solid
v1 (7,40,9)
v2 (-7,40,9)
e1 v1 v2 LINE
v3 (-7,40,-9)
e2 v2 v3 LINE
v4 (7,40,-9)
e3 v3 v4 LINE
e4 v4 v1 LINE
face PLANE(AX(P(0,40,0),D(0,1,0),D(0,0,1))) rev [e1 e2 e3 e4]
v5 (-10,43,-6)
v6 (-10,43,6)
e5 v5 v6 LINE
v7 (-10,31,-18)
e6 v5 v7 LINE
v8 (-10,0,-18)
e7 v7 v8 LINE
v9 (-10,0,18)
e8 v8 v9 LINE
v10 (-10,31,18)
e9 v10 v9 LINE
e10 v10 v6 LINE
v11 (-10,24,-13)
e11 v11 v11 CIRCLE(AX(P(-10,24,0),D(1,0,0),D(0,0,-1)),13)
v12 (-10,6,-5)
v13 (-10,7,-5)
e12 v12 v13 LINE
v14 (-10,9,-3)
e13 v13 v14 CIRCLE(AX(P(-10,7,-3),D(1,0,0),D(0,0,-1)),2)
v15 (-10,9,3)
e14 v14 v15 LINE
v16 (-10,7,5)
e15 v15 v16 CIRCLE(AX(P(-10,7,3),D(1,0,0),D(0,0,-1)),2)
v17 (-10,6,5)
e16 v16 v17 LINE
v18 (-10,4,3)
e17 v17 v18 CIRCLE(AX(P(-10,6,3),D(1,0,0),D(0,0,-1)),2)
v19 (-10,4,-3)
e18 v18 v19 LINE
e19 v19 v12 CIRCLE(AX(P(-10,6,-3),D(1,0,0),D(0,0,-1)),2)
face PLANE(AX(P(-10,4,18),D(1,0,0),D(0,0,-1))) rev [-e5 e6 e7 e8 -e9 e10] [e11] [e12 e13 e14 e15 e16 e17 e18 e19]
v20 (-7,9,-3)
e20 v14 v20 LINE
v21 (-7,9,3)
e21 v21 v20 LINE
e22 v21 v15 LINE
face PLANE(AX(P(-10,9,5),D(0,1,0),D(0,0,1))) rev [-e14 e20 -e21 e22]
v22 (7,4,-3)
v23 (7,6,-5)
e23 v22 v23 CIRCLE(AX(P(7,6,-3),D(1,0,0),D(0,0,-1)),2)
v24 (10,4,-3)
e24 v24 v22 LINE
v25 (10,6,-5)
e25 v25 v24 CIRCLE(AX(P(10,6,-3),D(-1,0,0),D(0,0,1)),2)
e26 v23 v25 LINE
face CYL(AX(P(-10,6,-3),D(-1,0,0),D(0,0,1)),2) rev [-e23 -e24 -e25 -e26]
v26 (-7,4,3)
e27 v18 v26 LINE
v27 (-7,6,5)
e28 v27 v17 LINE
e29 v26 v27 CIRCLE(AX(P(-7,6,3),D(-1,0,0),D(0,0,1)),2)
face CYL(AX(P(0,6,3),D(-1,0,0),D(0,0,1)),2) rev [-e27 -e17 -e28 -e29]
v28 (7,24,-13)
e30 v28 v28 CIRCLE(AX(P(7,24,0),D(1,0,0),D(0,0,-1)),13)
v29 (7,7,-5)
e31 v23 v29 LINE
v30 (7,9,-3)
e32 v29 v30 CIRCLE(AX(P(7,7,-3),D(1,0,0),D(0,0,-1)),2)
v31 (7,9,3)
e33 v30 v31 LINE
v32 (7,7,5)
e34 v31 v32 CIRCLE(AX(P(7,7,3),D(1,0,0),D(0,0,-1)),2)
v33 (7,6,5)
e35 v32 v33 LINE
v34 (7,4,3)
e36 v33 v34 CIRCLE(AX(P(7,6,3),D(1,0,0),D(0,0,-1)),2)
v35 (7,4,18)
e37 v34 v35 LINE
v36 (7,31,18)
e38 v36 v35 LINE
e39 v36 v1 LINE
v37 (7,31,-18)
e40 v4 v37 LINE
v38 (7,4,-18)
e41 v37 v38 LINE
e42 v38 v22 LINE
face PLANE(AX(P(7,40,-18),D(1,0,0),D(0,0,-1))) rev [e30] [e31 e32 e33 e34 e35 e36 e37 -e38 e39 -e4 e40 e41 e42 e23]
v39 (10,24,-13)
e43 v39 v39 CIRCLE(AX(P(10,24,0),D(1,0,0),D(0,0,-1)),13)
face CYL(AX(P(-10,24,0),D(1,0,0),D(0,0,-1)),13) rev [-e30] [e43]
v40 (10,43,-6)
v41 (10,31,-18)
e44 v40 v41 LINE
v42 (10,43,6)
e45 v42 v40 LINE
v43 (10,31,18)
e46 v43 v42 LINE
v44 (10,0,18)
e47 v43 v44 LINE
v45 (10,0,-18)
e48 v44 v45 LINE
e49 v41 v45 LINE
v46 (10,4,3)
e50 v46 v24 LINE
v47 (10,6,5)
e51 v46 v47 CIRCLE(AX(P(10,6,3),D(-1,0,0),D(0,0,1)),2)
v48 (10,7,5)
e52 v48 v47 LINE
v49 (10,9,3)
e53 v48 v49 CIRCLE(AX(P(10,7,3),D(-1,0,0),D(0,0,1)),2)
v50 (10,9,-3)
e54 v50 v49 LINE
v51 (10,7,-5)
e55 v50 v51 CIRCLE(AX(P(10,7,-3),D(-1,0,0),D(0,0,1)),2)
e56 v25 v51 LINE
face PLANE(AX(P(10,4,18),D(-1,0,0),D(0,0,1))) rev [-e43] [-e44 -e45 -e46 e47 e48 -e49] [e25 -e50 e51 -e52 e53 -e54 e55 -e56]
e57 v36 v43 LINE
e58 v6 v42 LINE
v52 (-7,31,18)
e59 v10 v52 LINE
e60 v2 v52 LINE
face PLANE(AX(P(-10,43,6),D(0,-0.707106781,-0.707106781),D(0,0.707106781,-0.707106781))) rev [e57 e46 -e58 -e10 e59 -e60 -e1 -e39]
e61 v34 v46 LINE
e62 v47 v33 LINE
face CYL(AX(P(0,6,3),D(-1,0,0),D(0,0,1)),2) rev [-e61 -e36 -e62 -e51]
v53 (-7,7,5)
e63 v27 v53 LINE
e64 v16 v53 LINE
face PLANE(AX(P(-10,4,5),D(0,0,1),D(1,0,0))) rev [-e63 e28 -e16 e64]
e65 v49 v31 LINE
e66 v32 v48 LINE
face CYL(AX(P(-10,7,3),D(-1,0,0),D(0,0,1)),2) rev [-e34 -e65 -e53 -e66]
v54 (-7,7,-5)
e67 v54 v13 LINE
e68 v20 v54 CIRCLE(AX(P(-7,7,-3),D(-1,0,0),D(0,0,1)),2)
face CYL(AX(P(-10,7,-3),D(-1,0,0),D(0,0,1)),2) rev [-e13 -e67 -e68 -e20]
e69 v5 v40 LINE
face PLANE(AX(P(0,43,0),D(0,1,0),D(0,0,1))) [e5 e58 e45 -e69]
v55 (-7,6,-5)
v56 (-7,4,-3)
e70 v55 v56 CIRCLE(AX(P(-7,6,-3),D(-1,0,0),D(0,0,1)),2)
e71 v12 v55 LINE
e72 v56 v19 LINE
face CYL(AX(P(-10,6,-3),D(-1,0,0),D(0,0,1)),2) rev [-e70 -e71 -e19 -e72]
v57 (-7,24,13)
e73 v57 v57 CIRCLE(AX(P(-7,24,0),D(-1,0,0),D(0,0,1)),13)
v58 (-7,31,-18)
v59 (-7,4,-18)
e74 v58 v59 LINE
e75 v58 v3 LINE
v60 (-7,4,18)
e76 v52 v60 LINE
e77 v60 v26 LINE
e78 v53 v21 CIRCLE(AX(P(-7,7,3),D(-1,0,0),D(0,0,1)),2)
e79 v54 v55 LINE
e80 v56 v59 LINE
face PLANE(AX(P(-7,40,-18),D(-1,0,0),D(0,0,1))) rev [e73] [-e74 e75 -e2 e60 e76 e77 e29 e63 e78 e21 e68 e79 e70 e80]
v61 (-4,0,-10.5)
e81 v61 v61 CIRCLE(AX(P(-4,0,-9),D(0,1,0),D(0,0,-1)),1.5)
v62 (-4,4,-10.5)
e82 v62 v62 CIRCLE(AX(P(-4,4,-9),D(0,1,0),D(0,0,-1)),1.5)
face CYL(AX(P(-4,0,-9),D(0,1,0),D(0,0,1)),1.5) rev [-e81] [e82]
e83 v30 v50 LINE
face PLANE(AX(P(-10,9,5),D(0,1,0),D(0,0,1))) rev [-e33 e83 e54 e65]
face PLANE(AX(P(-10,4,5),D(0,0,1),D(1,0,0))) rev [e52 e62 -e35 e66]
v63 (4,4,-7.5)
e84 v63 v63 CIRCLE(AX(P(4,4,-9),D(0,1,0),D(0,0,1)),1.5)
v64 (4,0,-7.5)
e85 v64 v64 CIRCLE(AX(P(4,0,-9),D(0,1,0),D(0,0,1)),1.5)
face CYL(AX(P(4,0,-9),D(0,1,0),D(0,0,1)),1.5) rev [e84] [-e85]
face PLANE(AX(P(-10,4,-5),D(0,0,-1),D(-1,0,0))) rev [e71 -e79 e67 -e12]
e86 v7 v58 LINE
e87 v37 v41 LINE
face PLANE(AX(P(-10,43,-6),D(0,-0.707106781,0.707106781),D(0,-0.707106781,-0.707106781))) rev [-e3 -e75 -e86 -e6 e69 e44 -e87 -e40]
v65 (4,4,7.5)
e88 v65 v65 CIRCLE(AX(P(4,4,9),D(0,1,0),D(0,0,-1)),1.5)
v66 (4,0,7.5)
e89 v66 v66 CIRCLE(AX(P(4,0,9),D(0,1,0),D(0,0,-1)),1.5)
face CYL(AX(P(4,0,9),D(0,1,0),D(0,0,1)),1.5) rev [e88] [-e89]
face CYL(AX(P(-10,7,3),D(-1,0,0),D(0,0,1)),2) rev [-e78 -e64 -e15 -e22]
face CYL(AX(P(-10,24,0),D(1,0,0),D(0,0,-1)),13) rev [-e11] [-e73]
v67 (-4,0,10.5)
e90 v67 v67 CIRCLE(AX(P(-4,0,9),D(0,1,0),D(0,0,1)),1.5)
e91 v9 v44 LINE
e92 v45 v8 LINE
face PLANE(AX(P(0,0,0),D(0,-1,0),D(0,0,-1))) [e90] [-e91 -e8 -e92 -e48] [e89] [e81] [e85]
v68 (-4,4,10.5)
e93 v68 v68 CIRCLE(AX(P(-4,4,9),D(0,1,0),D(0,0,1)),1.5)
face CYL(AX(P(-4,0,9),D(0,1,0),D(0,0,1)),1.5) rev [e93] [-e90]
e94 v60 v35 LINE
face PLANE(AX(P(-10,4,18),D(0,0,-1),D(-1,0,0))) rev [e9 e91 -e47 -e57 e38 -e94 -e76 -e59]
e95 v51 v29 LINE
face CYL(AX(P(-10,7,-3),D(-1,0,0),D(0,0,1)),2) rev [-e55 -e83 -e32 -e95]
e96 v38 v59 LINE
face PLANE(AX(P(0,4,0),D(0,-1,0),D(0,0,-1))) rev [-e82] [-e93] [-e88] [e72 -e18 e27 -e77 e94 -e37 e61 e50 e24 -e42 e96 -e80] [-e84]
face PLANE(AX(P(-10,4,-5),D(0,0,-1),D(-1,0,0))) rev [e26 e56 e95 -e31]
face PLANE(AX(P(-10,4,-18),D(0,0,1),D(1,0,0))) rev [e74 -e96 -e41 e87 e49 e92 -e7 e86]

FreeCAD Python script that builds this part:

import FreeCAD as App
import Part
import Sketcher
from FreeCAD import Vector
Q = App.Units.Quantity


def edges_at(feature, points):
    """Names of the edges that pass closest to the given points."""
    edges = feature.Shape.Edges
    near = lambda p: min(range(len(edges)), key=lambda i: edges[i].distToShape(Part.Vertex(*p))[0])
    return sorted({f"Edge{near(p) + 1}" for p in points})

doc = App.newDocument("Part")
body = doc.addObject("PartDesign::Body", "Body")

# Sketch on XZ plane
sketch1 = doc.addObject("Sketcher::SketchObject", "Sketch")
body.addObject(sketch1)
sketch1.AttachmentSupport = (doc.XZ_Plane, [""])
sketch1.MapMode = "FlatFace"
sketch1.addGeometry(Part.LineSegment(Vector(-10, -18, 0), Vector(-10, 18, 0)), False)
sketch1.addGeometry(Part.LineSegment(Vector(-10, 18, 0), Vector(10, 18, 0)), False)
sketch1.addGeometry(Part.LineSegment(Vector(10, 18, 0), Vector(10, -18, 0)), False)
sketch1.addGeometry(Part.LineSegment(Vector(10, -18, 0), Vector(-10, -18, 0)), False)
sketch1.addConstraint(Sketcher.Constraint("Coincident", 0, 2, 1, 1))
sketch1.addConstraint(Sketcher.Constraint("Coincident", 1, 2, 2, 1))
sketch1.addConstraint(Sketcher.Constraint("Coincident", 2, 2, 3, 1))
sketch1.addConstraint(Sketcher.Constraint("Coincident", 3, 2, 0, 1))
sketch1.addConstraint(Sketcher.Constraint("Vertical", 0))
sketch1.addConstraint(Sketcher.Constraint("Horizontal", 1))
sketch1.addConstraint(Sketcher.Constraint("Vertical", 2))
sketch1.addConstraint(Sketcher.Constraint("Horizontal", 3))
sketch1.addConstraint(Sketcher.Constraint("Symmetric", 0, 2, 2, 2, -1, 1))
sketch1.addConstraint(Sketcher.Constraint("DistanceX", 1, 1, 1, 2, Q("20 mm")))
sketch1.addConstraint(Sketcher.Constraint("DistanceY", 0, 1, 0, 2, Q("36 mm")))
pad1 = doc.addObject("PartDesign::Pad", "Pad")
body.addObject(pad1)
pad1.Profile = sketch1
pad1.Length = 4
pad1.Reversed = True

# Sketch on XZ plane
sketch2 = doc.addObject("Sketcher::SketchObject", "Sketch001")
body.addObject(sketch2)
sketch2.AttachmentSupport = (doc.XZ_Plane, [""])
sketch2.MapMode = "FlatFace"
sketch2.AttachmentOffset = App.Placement(Vector(0, 0, -4), App.Rotation())
sketch2.addGeometry(Part.LineSegment(Vector(-10, -18, 0), Vector(-10, 18, 0)), False)
sketch2.addGeometry(Part.LineSegment(Vector(-10, 18, 0), Vector(-7, 18, 0)), False)
sketch2.addGeometry(Part.LineSegment(Vector(-7, 18, 0), Vector(-7, -18, 0)), False)
sketch2.addGeometry(Part.LineSegment(Vector(-7, -18, 0), Vector(-10, -18, 0)), False)
sketch2.addGeometry(Part.LineSegment(Vector(7, -18, 0), Vector(7, 18, 0)), False)
sketch2.addGeometry(Part.LineSegment(Vector(7, 18, 0), Vector(10, 18, 0)), False)
sketch2.addGeometry(Part.LineSegment(Vector(10, 18, 0), Vector(10, -18, 0)), False)
sketch2.addGeometry(Part.LineSegment(Vector(10, -18, 0), Vector(7, -18, 0)), False)
sketch2.addConstraint(Sketcher.Constraint("Coincident", 0, 2, 1, 1))
sketch2.addConstraint(Sketcher.Constraint("Coincident", 1, 2, 2, 1))
sketch2.addConstraint(Sketcher.Constraint("Coincident", 2, 2, 3, 1))
sketch2.addConstraint(Sketcher.Constraint("Coincident", 3, 2, 0, 1))
sketch2.addConstraint(Sketcher.Constraint("Coincident", 4, 2, 5, 1))
sketch2.addConstraint(Sketcher.Constraint("Coincident", 5, 2, 6, 1))
sketch2.addConstraint(Sketcher.Constraint("Coincident", 6, 2, 7, 1))
sketch2.addConstraint(Sketcher.Constraint("Coincident", 7, 2, 4, 1))
sketch2.addConstraint(Sketcher.Constraint("Vertical", 0))
sketch2.addConstraint(Sketcher.Constraint("Horizontal", 1))
sketch2.addConstraint(Sketcher.Constraint("Vertical", 2))
sketch2.addConstraint(Sketcher.Constraint("Horizontal", 3))
sketch2.addConstraint(Sketcher.Constraint("Vertical", 4))
sketch2.addConstraint(Sketcher.Constraint("Horizontal", 5))
sketch2.addConstraint(Sketcher.Constraint("Vertical", 6))
sketch2.addConstraint(Sketcher.Constraint("Horizontal", 7))
sketch2.addConstraint(Sketcher.Constraint("Symmetric", 2, 2, 4, 2, -1, 1))
sketch2.addConstraint(Sketcher.Constraint("Symmetric", 0, 2, 6, 2, -1, 1))
sketch2.addConstraint(Sketcher.Constraint("Horizontal", 1, 2, 4, 2))
sketch2.addConstraint(Sketcher.Constraint("DistanceX", 1, 1, 1, 2, Q("3 mm")))
sketch2.addConstraint(Sketcher.Constraint("DistanceY", 0, 1, 0, 2, Q("36 mm")))
sketch2.addConstraint(Sketcher.Constraint("DistanceX", 0, 2, -1, 1, Q("10 mm")))
pad2 = doc.addObject("PartDesign::Pad", "Pad001")
body.addObject(pad2)
pad2.Profile = sketch2
pad2.Length = 36
pad2.Reversed = True

# Sketch on XZ plane
sketch3 = doc.addObject("Sketcher::SketchObject", "Sketch002")
body.addObject(sketch3)
sketch3.AttachmentSupport = (doc.XZ_Plane, [""])
sketch3.MapMode = "FlatFace"
sketch3.AttachmentOffset = App.Placement(Vector(0, 0, -40), App.Rotation())
sketch3.addGeometry(Part.LineSegment(Vector(-10, -18, 0), Vector(-10, 18, 0)), False)
sketch3.addGeometry(Part.LineSegment(Vector(-10, 18, 0), Vector(10, 18, 0)), False)
sketch3.addGeometry(Part.LineSegment(Vector(10, 18, 0), Vector(10, -18, 0)), False)
sketch3.addGeometry(Part.LineSegment(Vector(10, -18, 0), Vector(-10, -18, 0)), False)
sketch3.addConstraint(Sketcher.Constraint("Coincident", 0, 2, 1, 1))
sketch3.addConstraint(Sketcher.Constraint("Coincident", 1, 2, 2, 1))
sketch3.addConstraint(Sketcher.Constraint("Coincident", 2, 2, 3, 1))
sketch3.addConstraint(Sketcher.Constraint("Coincident", 3, 2, 0, 1))
sketch3.addConstraint(Sketcher.Constraint("Vertical", 0))
sketch3.addConstraint(Sketcher.Constraint("Horizontal", 1))
sketch3.addConstraint(Sketcher.Constraint("Vertical", 2))
sketch3.addConstraint(Sketcher.Constraint("Horizontal", 3))
sketch3.addConstraint(Sketcher.Constraint("Symmetric", 0, 2, 2, 2, -1, 1))
sketch3.addConstraint(Sketcher.Constraint("DistanceX", 1, 1, 1, 2, Q("20 mm")))
sketch3.addConstraint(Sketcher.Constraint("DistanceY", 0, 1, 0, 2, Q("36 mm")))
pad3 = doc.addObject("PartDesign::Pad", "Pad002")
body.addObject(pad3)
pad3.Profile = sketch3
pad3.Length = 3
pad3.Reversed = True

# Sketch on YZ plane
sketch4 = doc.addObject("Sketcher::SketchObject", "Sketch003")
body.addObject(sketch4)
sketch4.AttachmentSupport = (doc.YZ_Plane, [""])
sketch4.MapMode = "FlatFace"
sketch4.AttachmentOffset = App.Placement(Vector(0, 0, 10), App.Rotation())
sketch4.addGeometry(Part.Circle(Vector(24, 0, 0), Vector(0, 0, 1), 13), False)
sketch4.addConstraint(Sketcher.Constraint("PointOnObject", 0, 3, -1))
sketch4.addConstraint(Sketcher.Constraint("Diameter", 0, Q("26 mm")))
sketch4.addConstraint(Sketcher.Constraint("DistanceX", -1, 1, 0, 3, Q("24 mm")))
pocket1 = doc.addObject("PartDesign::Pocket", "Pocket")
body.addObject(pocket1)
pocket1.Profile = sketch4
pocket1.Type = "ThroughAll"

# Sketch on YZ plane
sketch5 = doc.addObject("Sketcher::SketchObject", "Sketch004")
body.addObject(sketch5)
sketch5.AttachmentSupport = (doc.YZ_Plane, [""])
sketch5.MapMode = "FlatFace"
sketch5.AttachmentOffset = App.Placement(Vector(0, 0, 10), App.Rotation())
sketch5.addGeometry(Part.LineSegment(Vector(31, 18, 0), Vector(43, 6, 0)), False)
sketch5.addGeometry(Part.LineSegment(Vector(43, 6, 0), Vector(43, 18, 0)), False)
sketch5.addGeometry(Part.LineSegment(Vector(43, 18, 0), Vector(31, 18, 0)), False)
sketch5.addGeometry(Part.LineSegment(Vector(31, -18, 0), Vector(43, -18, 0)), False)
sketch5.addGeometry(Part.LineSegment(Vector(43, -18, 0), Vector(43, -6, 0)), False)
sketch5.addGeometry(Part.LineSegment(Vector(43, -6, 0), Vector(31, -18, 0)), False)
sketch5.addConstraint(Sketcher.Constraint("Coincident", 0, 2, 1, 1))
sketch5.addConstraint(Sketcher.Constraint("Coincident", 1, 2, 2, 1))
sketch5.addConstraint(Sketcher.Constraint("Coincident", 2, 2, 0, 1))
sketch5.addConstraint(Sketcher.Constraint("Coincident", 3, 2, 4, 1))
sketch5.addConstraint(Sketcher.Constraint("Coincident", 4, 2, 5, 1))
sketch5.addConstraint(Sketcher.Constraint("Coincident", 5, 2, 3, 1))
sketch5.addConstraint(Sketcher.Constraint("Vertical", 1))
sketch5.addConstraint(Sketcher.Constraint("Horizontal", 2))
sketch5.addConstraint(Sketcher.Constraint("Horizontal", 3))
sketch5.addConstraint(Sketcher.Constraint("Vertical", 4))
sketch5.addConstraint(Sketcher.Constraint("Symmetric", 1, 2, 3, 2, -1))
sketch5.addConstraint(Sketcher.Constraint("Perpendicular", 0, 5))
sketch5.addConstraint(Sketcher.Constraint("Vertical", 2, 2, 5, 2))
sketch5.addConstraint(Sketcher.Constraint("Equal", 3, 1))
sketch5.addConstraint(Sketcher.Constraint("DistanceX", 2, 2, 2, 1, Q("12 mm")))
sketch5.addConstraint(Sketcher.Constraint("DistanceX", -1, 1, 0, 2, Q("43 mm")))
sketch5.addConstraint(Sketcher.Constraint("DistanceY", -1, 1, 0, 2, Q("6 mm")))
pocket2 = doc.addObject("PartDesign::Pocket", "Pocket001")
body.addObject(pocket2)
pocket2.Profile = sketch5
pocket2.Type = "ThroughAll"

# Sketch on XZ plane
sketch6 = doc.addObject("Sketcher::SketchObject", "Sketch005")
body.addObject(sketch6)
sketch6.AttachmentSupport = (doc.XZ_Plane, [""])
sketch6.MapMode = "FlatFace"
sketch6.AttachmentOffset = App.Placement(Vector(0, 0, -4), App.Rotation())
sketch6.addGeometry(Part.Circle(Vector(4, -9, 0), Vector(0, 0, 1), 1.5), False)
sketch6.addGeometry(Part.Circle(Vector(-4, -9, 0), Vector(0, 0, 1), 1.5), False)
sketch6.addGeometry(Part.Circle(Vector(4, 9, 0), Vector(0, 0, 1), 1.5), False)
sketch6.addGeometry(Part.Circle(Vector(-4, 9, 0), Vector(0, 0, 1), 1.5), False)
sketch6.addConstraint(Sketcher.Constraint("Equal", 0, 1))
sketch6.addConstraint(Sketcher.Constraint("Equal", 1, 2))
sketch6.addConstraint(Sketcher.Constraint("Equal", 2, 3))
sketch6.addConstraint(Sketcher.Constraint("Symmetric", 1, 3, 2, 3, -1, 1))
sketch6.addConstraint(Sketcher.Constraint("Symmetric", 0, 3, 3, 3, -1, 1))
sketch6.addConstraint(Sketcher.Constraint("Symmetric", 0, 3, 1, 3, -2))
sketch6.addConstraint(Sketcher.Constraint("Diameter", 0, Q("3 mm")))
sketch6.addConstraint(Sketcher.Constraint("DistanceX", -1, 1, 0, 3, Q("4 mm")))
sketch6.addConstraint(Sketcher.Constraint("DistanceY", 0, 3, -1, 1, Q("9 mm")))
pocket3 = doc.addObject("PartDesign::Pocket", "Pocket002")
body.addObject(pocket3)
pocket3.Profile = sketch6
pocket3.Length = 4
pocket3.Reversed = True

# Sketch on YZ plane
sketch7 = doc.addObject("Sketcher::SketchObject", "Sketch006")
body.addObject(sketch7)
sketch7.AttachmentSupport = (doc.YZ_Plane, [""])
sketch7.MapMode = "FlatFace"
sketch7.AttachmentOffset = App.Placement(Vector(0, 0, 10), App.Rotation())
sketch7.addGeometry(Part.LineSegment(Vector(9, 5, 0), Vector(4, 5, 0)), False)
sketch7.addGeometry(Part.LineSegment(Vector(4, 5, 0), Vector(4, -5, 0)), False)
sketch7.addGeometry(Part.LineSegment(Vector(4, -5, 0), Vector(9, -5, 0)), False)
sketch7.addGeometry(Part.LineSegment(Vector(9, -5, 0), Vector(9, 5, 0)), False)
sketch7.addConstraint(Sketcher.Constraint("Coincident", 0, 2, 1, 1))
sketch7.addConstraint(Sketcher.Constraint("Coincident", 1, 2, 2, 1))
sketch7.addConstraint(Sketcher.Constraint("Coincident", 2, 2, 3, 1))
sketch7.addConstraint(Sketcher.Constraint("Coincident", 3, 2, 0, 1))
sketch7.addConstraint(Sketcher.Constraint("Horizontal", 0))
sketch7.addConstraint(Sketcher.Constraint("Vertical", 1))
sketch7.addConstraint(Sketcher.Constraint("Horizontal", 2))
sketch7.addConstraint(Sketcher.Constraint("Vertical", 3))
sketch7.addConstraint(Sketcher.Constraint("DistanceX", 0, 2, 0, 1, Q("5 mm")))
sketch7.addConstraint(Sketcher.Constraint("DistanceY", 1, 2, 1, 1, Q("10 mm")))
sketch7.addConstraint(Sketcher.Constraint("DistanceX", -1, 1, 0, 2, Q("4 mm")))
sketch7.addConstraint(Sketcher.Constraint("DistanceY", -1, 1, 0, 2, Q("5 mm")))
pocket4 = doc.addObject("PartDesign::Pocket", "Pocket003")
body.addObject(pocket4)
pocket4.Profile = sketch7
pocket4.Type = "ThroughAll"
doc.recompute()

fillet = doc.addObject("PartDesign::Fillet", "Fillet")
body.addObject(fillet)
fillet.Base = (pocket4, edges_at(pocket4, [
    (-8.5, 4, 5),
    (8.5, 4, 5),
    (-8.5, 9, 5),
    (8.5, 9, 5),
    (-8.5, 9, -5),
    (8.5, 9, -5),
    (-8.5, 4, -5),
    (8.5, 4, -5),
]))
fillet.Radius = 2

doc.recompute()
